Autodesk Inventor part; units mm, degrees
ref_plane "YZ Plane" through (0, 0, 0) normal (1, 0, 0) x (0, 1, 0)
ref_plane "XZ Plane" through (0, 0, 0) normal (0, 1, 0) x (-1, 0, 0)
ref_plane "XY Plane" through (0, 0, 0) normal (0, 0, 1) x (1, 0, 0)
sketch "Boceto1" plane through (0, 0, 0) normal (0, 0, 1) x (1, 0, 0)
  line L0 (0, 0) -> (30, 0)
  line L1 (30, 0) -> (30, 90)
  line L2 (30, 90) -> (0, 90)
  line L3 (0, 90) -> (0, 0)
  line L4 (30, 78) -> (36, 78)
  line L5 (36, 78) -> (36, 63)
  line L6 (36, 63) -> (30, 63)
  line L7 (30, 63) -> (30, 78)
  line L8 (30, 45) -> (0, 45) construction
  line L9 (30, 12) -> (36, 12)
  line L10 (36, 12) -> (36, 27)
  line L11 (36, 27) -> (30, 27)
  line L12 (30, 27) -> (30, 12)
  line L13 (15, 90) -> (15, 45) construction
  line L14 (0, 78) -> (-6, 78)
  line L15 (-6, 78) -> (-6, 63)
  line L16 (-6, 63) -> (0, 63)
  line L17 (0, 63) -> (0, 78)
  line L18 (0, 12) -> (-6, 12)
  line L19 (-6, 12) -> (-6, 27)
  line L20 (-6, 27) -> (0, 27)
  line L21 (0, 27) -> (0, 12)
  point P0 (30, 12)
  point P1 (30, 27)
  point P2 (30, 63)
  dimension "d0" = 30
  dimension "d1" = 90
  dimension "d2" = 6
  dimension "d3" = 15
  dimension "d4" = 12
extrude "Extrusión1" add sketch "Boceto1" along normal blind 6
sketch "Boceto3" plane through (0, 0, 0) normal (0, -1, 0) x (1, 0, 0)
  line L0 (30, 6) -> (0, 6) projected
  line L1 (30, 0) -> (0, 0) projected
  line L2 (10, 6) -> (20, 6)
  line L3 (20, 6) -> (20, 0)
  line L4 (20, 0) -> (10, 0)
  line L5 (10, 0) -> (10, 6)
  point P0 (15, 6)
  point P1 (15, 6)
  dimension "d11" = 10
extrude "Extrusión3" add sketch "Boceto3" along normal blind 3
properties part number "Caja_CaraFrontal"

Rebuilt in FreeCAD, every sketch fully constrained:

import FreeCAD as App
import Part
import Sketcher

V = App.Vector
Q = App.Units.Quantity

doc = App.newDocument("Part")
params = doc.addObject("Spreadsheet::Sheet", "Params")
for row, (alias, value) in enumerate([
    ("sketch1_width", "30 mm"),
    ("sketch1_width2", "6 mm"),
    ("sketch1_height", "12 mm"),
    ("sketch1_height2", "15 mm"),
    ("pad1_length", "6 mm"),
    ("sketch2_width", "10 mm"),
    ("sketch2_height", "6 mm"),
    ("pad2_length", "3 mm"),
], start=1):
    params.set(f"A{row}", alias)
    params.set(f"B{row}", "=" + value)
    params.setAlias(f"B{row}", alias)

body = doc.addObject("PartDesign::Body", "Body")

# Sketch on XY plane
sketch1 = body.newObject("Sketcher::SketchObject", "Sketch")
sketch1.AttachmentSupport = (doc.getObject("XY_Plane"), [""])
sketch1.MapMode = "FlatFace"
sketch1.addGeometry([
    Part.LineSegment(V(0, 12, 0), V(0, 0, 0)),  # 0
    Part.LineSegment(V(0, 0, 0), V(30, 0, 0)),  # 1
    Part.LineSegment(V(30, 0, 0), V(30, 12, 0)),  # 2
    Part.LineSegment(V(30, 12, 0), V(36, 12, 0)),  # 3
    Part.LineSegment(V(36, 12, 0), V(36, 27, 0)),  # 4
    Part.LineSegment(V(36, 27, 0), V(30, 27, 0)),  # 5
    Part.LineSegment(V(30, 27, 0), V(30, 63, 0)),  # 6
    Part.LineSegment(V(30, 63, 0), V(36, 63, 0)),  # 7
    Part.LineSegment(V(36, 63, 0), V(36, 78, 0)),  # 8
    Part.LineSegment(V(36, 78, 0), V(30, 78, 0)),  # 9
    Part.LineSegment(V(30, 78, 0), V(30, 90, 0)),  # 10
    Part.LineSegment(V(30, 90, 0), V(0, 90, 0)),  # 11
    Part.LineSegment(V(0, 90, 0), V(0, 78, 0)),  # 12
    Part.LineSegment(V(0, 78, 0), V(-6, 78, 0)),  # 13
    Part.LineSegment(V(-6, 78, 0), V(-6, 63, 0)),  # 14
    Part.LineSegment(V(-6, 63, 0), V(0, 63, 0)),  # 15
    Part.LineSegment(V(0, 63, 0), V(0, 27, 0)),  # 16
    Part.LineSegment(V(0, 27, 0), V(-6, 27, 0)),  # 17
    Part.LineSegment(V(-6, 27, 0), V(-6, 12, 0)),  # 18
    Part.LineSegment(V(-6, 12, 0), V(0, 12, 0)),  # 19
], False)
sketch1.addConstraint([
    Sketcher.Constraint("Coincident", 0, 2, 1, 1),
    Sketcher.Constraint("Coincident", 1, 2, 2, 1),
    Sketcher.Constraint("Coincident", 2, 2, 3, 1),
    Sketcher.Constraint("Coincident", 3, 2, 4, 1),
    Sketcher.Constraint("Coincident", 4, 2, 5, 1),
    Sketcher.Constraint("Coincident", 5, 2, 6, 1),
    Sketcher.Constraint("Coincident", 6, 2, 7, 1),
    Sketcher.Constraint("Coincident", 7, 2, 8, 1),
    Sketcher.Constraint("Coincident", 8, 2, 9, 1),
    Sketcher.Constraint("Coincident", 9, 2, 10, 1),
    Sketcher.Constraint("Coincident", 10, 2, 11, 1),
    Sketcher.Constraint("Coincident", 11, 2, 12, 1),
    Sketcher.Constraint("Coincident", 12, 2, 13, 1),
    Sketcher.Constraint("Coincident", 13, 2, 14, 1),
    Sketcher.Constraint("Coincident", 14, 2, 15, 1),
    Sketcher.Constraint("Coincident", 15, 2, 16, 1),
    Sketcher.Constraint("Coincident", 16, 2, 17, 1),
    Sketcher.Constraint("Coincident", 17, 2, 18, 1),
    Sketcher.Constraint("Coincident", 18, 2, 19, 1),
    Sketcher.Constraint("Coincident", 19, 2, 0, 1),
    Sketcher.Constraint("Vertical", 0),
    Sketcher.Constraint("Horizontal", 1),
    Sketcher.Constraint("Vertical", 2),
    Sketcher.Constraint("Horizontal", 3),
    Sketcher.Constraint("Vertical", 4),
    Sketcher.Constraint("Horizontal", 5),
    Sketcher.Constraint("Vertical", 6),
    Sketcher.Constraint("Horizontal", 7),
    Sketcher.Constraint("Vertical", 8),
    Sketcher.Constraint("Horizontal", 9),
    Sketcher.Constraint("Vertical", 10),
    Sketcher.Constraint("Horizontal", 11),
    Sketcher.Constraint("Vertical", 12),
    Sketcher.Constraint("Horizontal", 13),
    Sketcher.Constraint("Vertical", 14),
    Sketcher.Constraint("Horizontal", 15),
    Sketcher.Constraint("Vertical", 16),
    Sketcher.Constraint("Horizontal", 17),
    Sketcher.Constraint("Vertical", 18),
    Sketcher.Constraint("Horizontal", 19),
    Sketcher.Constraint("Coincident", 0, 2, -1, 1),
    Sketcher.Constraint("PointOnObject", 11, 2, -2),
    Sketcher.Constraint("PointOnObject", 15, 2, -2),
    Sketcher.Constraint("Horizontal", 9, 2, 12, 2),
    Sketcher.Constraint("Horizontal", 7, 2, 14, 2),
    Sketcher.Constraint("Horizontal", 5, 2, 16, 2),
    Sketcher.Constraint("Horizontal", 3, 2, 18, 2),
    Sketcher.Constraint("Vertical", 2, 2, 5, 2),
    Sketcher.Constraint("Vertical", 4, 2, 7, 2),
    Sketcher.Constraint("Vertical", 6, 2, 9, 2),
    Sketcher.Constraint("Vertical", 14, 2, 17, 2),
    Sketcher.Constraint("Equal", 9, 13),
    Sketcher.Constraint("Equal", 4, 8),
    Sketcher.Constraint("Equal", 2, 10),
    Sketcher.Constraint("DistanceX", 1, 1, 1, 2, Q("30 mm")),
    Sketcher.Constraint("DistanceX", 3, 1, 3, 2, Q("6 mm")),
    Sketcher.Constraint("DistanceY", 0, 2, 0, 1, Q("12 mm")),
    Sketcher.Constraint("DistanceY", 4, 1, 4, 2, Q("15 mm")),
    Sketcher.Constraint("DistanceY", -1, 1, 10, 2, Q("90 mm")),
])
sketch1.setExpression("Constraints[54]", "Params.sketch1_width")
sketch1.setExpression("Constraints[55]", "Params.sketch1_width2")
sketch1.setExpression("Constraints[56]", "Params.sketch1_height")
sketch1.setExpression("Constraints[57]", "Params.sketch1_height2")
pad1 = body.newObject("PartDesign::Pad", "Pad")
pad1.Profile = sketch1
pad1.setExpression("Length", "Params.pad1_length")

# Sketch on XZ plane
sketch2 = body.newObject("Sketcher::SketchObject", "Sketch001")
sketch2.AttachmentSupport = (doc.getObject("XZ_Plane"), [""])
sketch2.MapMode = "FlatFace"
sketch2.addGeometry([
    Part.LineSegment(V(20, 0, 0), V(20, 6, 0)),
    Part.LineSegment(V(20, 6, 0), V(10, 6, 0)),
    Part.LineSegment(V(10, 6, 0), V(10, 0, 0)),
    Part.LineSegment(V(10, 0, 0), V(20, 0, 0)),
], False)
sketch2.addConstraint([
    Sketcher.Constraint("Coincident", 0, 2, 1, 1),
    Sketcher.Constraint("Coincident", 1, 2, 2, 1),
    Sketcher.Constraint("Coincident", 2, 2, 3, 1),
    Sketcher.Constraint("Coincident", 3, 2, 0, 1),
    Sketcher.Constraint("Vertical", 0),
    Sketcher.Constraint("Horizontal", 1),
    Sketcher.Constraint("Vertical", 2),
    Sketcher.Constraint("Horizontal", 3),
    Sketcher.Constraint("PointOnObject", 2, 2, -1),
    Sketcher.Constraint("DistanceX", 1, 2, 1, 1, Q("10 mm")),
    Sketcher.Constraint("DistanceX", -1, 1, 1, 2, Q("10 mm")),
    Sketcher.Constraint("DistanceY", 0, 1, 0, 2, Q("6 mm")),
])
sketch2.setExpression("Constraints[9]", "Params.sketch2_width")
sketch2.setExpression("Constraints[11]", "Params.sketch2_height")
pad2 = body.newObject("PartDesign::Pad", "Pad001")
pad2.Profile = sketch2
pad2.setExpression("Length", "Params.pad2_length")

doc.recompute()
